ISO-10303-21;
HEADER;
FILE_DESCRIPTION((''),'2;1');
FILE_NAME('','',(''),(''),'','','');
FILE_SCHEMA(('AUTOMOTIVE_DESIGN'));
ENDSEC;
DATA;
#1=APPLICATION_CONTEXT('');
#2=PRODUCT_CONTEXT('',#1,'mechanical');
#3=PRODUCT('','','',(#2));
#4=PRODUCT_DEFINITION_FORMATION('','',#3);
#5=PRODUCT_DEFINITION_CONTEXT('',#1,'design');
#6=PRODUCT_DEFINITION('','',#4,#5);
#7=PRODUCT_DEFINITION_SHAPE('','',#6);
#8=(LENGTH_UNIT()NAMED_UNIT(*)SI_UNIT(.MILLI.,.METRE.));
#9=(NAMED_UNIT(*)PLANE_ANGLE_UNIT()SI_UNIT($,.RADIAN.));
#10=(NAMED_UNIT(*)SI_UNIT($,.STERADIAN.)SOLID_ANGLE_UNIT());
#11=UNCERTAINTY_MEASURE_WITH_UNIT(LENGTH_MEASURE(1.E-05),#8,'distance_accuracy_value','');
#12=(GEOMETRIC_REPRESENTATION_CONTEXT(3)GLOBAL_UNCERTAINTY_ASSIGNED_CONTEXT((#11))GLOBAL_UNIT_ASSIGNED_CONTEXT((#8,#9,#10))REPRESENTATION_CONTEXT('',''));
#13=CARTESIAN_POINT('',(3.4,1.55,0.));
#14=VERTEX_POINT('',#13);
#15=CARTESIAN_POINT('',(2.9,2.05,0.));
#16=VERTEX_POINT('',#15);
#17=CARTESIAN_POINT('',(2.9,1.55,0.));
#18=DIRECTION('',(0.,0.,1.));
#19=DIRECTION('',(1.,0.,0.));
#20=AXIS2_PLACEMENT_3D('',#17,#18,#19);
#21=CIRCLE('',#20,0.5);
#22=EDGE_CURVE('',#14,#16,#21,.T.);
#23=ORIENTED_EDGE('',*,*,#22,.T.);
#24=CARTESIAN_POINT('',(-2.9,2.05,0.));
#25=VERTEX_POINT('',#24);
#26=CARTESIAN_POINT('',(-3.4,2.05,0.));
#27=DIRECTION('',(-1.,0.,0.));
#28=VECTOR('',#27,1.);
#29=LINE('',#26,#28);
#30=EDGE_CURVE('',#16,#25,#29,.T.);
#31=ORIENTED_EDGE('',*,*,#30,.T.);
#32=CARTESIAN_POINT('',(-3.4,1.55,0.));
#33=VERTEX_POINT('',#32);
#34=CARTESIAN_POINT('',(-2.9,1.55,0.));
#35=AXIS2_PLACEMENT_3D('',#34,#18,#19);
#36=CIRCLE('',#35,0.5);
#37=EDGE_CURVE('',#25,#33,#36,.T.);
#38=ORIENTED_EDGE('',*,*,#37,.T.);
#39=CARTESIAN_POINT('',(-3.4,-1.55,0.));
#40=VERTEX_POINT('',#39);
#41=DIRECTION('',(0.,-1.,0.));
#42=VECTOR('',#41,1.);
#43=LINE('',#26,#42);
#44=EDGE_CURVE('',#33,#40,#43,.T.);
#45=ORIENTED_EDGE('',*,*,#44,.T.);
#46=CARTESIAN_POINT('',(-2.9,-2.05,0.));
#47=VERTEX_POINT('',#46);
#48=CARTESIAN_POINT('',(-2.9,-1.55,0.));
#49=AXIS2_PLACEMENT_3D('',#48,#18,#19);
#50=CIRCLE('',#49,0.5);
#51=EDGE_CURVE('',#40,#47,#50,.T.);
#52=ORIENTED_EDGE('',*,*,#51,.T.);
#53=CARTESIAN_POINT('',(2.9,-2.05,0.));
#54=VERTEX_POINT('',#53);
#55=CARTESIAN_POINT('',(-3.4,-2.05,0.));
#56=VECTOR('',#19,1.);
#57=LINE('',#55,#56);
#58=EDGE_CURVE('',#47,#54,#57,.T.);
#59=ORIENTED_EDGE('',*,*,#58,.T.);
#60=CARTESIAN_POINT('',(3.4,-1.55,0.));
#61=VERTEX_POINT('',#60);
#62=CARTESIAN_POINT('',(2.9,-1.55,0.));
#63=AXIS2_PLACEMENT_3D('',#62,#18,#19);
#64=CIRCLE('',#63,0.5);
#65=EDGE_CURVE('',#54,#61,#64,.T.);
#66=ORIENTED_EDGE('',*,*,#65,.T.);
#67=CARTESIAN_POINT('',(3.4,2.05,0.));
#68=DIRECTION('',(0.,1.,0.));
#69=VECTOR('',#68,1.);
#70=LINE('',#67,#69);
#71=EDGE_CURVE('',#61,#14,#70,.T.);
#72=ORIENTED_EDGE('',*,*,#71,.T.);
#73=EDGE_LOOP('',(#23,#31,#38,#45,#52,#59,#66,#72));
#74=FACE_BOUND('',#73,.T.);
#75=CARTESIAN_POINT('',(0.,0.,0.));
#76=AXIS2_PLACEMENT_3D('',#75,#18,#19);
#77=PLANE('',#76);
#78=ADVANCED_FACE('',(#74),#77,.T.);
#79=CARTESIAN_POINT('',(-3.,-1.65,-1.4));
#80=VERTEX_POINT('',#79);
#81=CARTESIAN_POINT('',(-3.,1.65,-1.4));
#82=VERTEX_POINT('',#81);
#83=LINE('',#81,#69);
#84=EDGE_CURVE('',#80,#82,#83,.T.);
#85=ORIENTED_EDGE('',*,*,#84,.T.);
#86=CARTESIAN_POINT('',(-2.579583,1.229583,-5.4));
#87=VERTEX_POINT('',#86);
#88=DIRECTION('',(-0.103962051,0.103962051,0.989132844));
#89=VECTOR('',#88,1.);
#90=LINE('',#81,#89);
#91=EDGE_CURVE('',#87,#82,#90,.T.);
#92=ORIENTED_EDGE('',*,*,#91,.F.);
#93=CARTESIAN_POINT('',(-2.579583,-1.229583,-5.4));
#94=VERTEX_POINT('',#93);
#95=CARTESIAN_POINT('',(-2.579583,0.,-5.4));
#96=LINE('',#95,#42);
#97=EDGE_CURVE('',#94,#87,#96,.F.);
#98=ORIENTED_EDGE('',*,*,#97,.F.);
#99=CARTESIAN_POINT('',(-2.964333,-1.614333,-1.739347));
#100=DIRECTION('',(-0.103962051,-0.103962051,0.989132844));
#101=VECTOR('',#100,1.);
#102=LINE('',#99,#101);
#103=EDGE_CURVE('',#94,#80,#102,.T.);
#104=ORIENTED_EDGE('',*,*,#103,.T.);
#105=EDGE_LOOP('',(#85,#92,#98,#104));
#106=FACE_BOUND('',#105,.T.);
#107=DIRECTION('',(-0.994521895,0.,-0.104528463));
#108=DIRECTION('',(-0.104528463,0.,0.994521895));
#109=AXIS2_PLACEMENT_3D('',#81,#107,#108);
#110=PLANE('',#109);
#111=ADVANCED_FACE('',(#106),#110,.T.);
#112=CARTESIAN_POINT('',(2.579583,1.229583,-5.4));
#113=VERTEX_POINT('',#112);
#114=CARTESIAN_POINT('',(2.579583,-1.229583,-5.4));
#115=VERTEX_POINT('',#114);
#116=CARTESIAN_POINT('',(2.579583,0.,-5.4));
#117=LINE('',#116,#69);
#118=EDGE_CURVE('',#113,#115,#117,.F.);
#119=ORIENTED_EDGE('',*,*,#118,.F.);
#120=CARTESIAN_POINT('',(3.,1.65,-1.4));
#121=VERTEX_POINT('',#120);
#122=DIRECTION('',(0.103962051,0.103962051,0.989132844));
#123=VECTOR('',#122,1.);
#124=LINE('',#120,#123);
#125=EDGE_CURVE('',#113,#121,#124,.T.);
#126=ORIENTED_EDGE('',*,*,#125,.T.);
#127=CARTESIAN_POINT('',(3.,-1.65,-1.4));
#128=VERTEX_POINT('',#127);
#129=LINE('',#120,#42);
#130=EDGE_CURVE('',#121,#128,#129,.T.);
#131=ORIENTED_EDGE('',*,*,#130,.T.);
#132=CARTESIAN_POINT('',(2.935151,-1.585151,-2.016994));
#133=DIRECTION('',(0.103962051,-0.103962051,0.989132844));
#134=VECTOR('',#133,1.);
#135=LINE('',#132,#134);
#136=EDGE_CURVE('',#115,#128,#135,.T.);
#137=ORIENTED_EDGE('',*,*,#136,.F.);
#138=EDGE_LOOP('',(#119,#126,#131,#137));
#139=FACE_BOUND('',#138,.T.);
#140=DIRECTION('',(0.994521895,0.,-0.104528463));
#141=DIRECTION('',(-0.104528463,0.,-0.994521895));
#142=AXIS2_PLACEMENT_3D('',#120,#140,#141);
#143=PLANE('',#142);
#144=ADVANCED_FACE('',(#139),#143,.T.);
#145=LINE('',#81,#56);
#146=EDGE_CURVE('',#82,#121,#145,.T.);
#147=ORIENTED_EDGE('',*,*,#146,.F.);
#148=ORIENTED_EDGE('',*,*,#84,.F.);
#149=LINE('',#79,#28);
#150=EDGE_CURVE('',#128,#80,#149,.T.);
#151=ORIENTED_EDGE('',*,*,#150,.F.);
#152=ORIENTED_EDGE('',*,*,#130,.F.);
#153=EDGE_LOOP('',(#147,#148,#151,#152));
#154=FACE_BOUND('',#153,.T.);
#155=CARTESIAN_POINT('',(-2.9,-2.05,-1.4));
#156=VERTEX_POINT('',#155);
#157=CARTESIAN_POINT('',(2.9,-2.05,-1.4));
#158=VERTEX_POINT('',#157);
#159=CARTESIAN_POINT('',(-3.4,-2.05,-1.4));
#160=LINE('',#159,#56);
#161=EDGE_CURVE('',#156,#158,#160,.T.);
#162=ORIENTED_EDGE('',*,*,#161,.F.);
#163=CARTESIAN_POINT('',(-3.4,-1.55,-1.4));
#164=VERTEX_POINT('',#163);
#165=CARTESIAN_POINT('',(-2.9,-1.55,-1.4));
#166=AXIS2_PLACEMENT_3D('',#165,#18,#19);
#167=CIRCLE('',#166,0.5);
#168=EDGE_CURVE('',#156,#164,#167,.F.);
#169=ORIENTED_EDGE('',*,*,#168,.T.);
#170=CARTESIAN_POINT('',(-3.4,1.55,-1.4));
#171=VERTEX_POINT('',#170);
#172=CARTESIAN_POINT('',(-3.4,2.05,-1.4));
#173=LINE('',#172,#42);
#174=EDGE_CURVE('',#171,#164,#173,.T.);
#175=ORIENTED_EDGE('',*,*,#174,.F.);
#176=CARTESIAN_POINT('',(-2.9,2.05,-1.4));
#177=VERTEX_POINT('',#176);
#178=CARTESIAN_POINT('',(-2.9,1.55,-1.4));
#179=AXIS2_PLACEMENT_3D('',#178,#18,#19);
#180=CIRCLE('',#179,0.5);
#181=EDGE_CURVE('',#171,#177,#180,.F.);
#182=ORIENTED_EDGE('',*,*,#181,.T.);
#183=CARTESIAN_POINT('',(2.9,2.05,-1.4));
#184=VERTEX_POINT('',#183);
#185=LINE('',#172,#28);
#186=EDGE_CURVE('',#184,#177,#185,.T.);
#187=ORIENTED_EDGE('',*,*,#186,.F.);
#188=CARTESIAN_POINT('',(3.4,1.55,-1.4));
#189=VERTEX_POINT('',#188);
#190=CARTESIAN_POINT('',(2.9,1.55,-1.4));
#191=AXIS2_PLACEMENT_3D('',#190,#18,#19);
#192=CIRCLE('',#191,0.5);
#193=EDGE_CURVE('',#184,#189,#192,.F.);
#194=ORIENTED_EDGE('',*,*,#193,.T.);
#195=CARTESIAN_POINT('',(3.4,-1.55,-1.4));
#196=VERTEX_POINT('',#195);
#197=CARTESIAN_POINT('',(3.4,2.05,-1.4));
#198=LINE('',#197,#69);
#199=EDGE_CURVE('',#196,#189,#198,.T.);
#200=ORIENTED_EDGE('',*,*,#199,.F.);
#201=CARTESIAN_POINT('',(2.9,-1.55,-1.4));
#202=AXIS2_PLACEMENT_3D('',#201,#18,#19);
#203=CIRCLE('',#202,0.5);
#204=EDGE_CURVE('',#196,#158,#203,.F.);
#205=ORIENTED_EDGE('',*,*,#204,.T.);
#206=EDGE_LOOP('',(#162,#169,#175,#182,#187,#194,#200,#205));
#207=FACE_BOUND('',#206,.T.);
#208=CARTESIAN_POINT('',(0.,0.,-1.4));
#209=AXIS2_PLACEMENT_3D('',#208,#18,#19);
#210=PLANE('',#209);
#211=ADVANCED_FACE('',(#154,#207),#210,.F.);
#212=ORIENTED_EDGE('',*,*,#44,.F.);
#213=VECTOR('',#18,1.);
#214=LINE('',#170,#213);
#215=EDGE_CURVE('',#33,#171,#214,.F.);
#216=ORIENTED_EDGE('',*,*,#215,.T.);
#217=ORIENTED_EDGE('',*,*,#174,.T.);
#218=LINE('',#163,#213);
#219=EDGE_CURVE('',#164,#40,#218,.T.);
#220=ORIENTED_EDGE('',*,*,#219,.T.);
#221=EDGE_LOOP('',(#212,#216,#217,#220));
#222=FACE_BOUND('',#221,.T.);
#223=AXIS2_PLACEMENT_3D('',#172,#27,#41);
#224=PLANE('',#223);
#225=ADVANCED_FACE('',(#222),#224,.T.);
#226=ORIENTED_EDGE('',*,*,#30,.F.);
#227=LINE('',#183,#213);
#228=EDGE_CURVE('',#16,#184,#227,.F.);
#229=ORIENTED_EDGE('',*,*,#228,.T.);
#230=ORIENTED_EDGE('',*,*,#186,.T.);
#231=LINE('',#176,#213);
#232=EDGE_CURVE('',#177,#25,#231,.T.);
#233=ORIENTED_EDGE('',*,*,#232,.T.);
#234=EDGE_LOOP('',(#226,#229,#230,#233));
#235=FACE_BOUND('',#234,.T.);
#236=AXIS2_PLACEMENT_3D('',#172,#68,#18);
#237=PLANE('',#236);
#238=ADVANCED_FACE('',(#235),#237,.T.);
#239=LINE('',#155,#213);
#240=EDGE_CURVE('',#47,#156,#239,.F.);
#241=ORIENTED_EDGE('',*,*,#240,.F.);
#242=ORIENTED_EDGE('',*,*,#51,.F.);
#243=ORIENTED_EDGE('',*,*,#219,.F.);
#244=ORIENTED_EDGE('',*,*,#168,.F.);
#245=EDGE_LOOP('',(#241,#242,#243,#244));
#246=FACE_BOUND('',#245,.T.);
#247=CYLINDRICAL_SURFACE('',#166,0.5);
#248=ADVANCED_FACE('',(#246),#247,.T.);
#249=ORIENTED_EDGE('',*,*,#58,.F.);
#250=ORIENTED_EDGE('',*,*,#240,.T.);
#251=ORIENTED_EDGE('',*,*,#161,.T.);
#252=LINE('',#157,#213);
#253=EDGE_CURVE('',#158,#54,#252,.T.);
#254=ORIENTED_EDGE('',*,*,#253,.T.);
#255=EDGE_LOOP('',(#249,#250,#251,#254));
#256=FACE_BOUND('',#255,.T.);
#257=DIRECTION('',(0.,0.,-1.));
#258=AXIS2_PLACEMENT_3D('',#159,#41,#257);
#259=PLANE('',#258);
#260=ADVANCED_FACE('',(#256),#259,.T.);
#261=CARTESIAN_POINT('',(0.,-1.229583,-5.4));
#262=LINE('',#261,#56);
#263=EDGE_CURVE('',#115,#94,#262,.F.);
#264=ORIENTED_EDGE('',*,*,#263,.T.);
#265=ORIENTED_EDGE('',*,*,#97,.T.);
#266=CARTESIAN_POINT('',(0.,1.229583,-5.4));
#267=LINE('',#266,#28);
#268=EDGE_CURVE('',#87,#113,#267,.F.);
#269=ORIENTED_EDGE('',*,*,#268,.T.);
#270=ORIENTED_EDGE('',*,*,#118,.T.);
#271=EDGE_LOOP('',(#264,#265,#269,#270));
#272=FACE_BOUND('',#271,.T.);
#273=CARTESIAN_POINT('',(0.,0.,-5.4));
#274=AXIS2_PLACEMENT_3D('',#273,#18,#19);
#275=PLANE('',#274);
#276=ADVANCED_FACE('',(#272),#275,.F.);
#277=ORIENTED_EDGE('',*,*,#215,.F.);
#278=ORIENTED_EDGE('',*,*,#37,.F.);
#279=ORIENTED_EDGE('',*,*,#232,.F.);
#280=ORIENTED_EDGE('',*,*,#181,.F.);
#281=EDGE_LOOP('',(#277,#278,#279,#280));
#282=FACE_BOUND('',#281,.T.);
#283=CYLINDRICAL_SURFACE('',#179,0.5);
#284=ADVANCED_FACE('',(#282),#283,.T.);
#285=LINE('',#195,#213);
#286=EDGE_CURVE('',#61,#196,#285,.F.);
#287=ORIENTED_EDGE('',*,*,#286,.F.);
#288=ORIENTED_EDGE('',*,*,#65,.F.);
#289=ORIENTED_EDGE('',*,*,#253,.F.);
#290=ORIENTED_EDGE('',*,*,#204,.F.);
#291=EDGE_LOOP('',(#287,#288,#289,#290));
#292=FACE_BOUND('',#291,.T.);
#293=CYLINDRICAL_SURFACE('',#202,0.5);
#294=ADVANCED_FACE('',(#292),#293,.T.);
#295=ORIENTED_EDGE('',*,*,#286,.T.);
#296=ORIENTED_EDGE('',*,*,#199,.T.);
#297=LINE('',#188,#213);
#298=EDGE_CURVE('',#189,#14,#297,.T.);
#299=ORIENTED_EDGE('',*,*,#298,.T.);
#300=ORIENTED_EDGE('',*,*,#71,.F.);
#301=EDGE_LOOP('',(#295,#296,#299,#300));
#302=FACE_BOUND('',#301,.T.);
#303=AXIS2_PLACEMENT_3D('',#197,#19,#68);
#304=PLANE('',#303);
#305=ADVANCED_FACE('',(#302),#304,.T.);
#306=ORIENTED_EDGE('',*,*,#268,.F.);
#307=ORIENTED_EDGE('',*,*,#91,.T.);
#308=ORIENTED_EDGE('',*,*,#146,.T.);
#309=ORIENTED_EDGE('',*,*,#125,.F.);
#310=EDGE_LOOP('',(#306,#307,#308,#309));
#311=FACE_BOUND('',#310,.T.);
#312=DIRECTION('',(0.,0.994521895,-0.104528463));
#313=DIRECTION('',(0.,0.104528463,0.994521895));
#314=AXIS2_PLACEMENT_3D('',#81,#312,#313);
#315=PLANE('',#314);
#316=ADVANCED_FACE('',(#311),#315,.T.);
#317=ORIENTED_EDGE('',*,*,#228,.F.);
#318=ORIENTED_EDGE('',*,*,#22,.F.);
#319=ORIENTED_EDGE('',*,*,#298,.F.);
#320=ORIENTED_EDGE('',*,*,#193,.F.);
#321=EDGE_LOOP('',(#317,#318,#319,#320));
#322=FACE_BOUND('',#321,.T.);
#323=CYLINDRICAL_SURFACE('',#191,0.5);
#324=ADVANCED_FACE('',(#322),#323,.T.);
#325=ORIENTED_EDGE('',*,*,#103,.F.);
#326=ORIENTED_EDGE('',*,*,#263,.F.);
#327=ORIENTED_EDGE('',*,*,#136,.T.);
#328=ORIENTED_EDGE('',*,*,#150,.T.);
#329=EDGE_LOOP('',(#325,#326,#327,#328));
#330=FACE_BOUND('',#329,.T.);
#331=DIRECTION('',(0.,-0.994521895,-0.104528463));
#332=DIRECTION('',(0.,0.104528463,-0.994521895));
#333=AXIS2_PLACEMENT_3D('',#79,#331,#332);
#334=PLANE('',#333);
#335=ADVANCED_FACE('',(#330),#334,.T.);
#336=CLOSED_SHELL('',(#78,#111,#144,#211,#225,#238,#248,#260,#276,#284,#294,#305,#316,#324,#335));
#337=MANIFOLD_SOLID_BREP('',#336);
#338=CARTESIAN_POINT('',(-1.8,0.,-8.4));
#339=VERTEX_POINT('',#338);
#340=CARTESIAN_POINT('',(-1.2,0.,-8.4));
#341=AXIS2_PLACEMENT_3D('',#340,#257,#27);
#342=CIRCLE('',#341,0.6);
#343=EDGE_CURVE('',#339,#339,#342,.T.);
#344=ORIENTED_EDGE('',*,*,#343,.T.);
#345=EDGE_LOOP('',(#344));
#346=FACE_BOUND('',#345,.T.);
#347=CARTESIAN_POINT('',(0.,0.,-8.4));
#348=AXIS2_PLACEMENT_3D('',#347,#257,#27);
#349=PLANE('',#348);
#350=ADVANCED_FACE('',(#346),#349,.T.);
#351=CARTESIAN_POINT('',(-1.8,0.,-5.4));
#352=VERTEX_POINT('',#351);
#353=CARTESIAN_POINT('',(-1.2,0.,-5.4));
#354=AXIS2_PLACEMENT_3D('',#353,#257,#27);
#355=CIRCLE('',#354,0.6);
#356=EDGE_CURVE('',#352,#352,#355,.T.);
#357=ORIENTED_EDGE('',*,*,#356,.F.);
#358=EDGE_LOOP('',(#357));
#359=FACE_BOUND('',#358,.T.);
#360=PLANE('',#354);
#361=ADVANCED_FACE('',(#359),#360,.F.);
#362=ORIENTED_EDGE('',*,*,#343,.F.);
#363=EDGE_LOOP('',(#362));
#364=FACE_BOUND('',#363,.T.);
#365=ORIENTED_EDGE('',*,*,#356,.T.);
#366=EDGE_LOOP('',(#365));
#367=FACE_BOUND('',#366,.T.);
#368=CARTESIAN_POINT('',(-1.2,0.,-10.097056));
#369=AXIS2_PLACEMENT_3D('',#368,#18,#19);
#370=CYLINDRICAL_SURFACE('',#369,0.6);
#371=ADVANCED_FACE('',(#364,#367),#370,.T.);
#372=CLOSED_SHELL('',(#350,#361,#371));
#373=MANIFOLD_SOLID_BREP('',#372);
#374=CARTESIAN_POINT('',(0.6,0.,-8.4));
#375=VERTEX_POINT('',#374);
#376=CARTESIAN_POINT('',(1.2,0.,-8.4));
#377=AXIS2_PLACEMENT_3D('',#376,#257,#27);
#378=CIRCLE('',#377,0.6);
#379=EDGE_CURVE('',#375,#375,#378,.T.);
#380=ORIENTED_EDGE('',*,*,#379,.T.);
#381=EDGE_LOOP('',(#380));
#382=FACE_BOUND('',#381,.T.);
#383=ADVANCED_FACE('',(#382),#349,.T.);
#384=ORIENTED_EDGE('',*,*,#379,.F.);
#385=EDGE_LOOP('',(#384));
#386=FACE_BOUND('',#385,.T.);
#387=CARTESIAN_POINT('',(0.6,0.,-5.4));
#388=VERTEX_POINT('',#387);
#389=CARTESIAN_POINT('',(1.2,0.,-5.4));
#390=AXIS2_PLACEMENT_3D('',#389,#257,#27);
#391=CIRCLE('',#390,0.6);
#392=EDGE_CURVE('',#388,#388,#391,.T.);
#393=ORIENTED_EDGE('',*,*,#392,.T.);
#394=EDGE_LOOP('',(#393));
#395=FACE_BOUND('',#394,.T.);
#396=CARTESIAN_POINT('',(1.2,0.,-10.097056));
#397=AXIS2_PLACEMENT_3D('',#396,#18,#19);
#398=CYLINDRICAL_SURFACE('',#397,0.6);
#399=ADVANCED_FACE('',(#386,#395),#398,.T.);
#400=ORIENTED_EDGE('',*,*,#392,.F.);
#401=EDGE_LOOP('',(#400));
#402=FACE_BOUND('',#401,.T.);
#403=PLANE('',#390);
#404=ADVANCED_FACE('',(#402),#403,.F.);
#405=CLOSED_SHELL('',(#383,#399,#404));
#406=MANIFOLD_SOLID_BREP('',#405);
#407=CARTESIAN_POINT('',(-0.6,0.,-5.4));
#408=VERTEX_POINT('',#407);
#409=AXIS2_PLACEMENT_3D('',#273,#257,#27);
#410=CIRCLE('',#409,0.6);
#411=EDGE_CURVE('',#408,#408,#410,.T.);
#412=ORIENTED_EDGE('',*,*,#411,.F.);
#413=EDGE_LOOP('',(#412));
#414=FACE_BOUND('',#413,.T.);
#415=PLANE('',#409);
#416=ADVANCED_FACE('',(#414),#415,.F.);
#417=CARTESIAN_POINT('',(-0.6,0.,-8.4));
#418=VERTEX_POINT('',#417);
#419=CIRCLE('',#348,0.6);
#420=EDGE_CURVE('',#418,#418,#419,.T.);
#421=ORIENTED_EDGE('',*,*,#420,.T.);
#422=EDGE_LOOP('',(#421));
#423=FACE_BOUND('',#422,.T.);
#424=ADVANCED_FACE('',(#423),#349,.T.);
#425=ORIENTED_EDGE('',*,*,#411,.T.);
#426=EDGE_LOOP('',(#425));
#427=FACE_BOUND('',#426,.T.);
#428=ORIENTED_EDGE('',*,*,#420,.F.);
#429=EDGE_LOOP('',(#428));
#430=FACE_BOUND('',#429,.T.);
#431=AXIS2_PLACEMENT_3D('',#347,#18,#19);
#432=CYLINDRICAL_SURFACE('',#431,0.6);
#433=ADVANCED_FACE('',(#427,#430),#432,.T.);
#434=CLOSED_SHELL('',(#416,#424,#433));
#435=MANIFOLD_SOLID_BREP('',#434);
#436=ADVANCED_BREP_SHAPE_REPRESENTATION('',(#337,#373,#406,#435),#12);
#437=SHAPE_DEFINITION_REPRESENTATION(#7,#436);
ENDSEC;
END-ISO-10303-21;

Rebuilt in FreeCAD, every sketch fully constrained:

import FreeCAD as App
import Part
import Sketcher
Q = App.Units.Quantity


def edges_at(feature, points):
    """Names of the edges that pass closest to the given points."""
    edges = feature.Shape.Edges
    near = lambda p: min(range(len(edges)), key=lambda i: edges[i].distToShape(Part.Vertex(*p))[0])
    return sorted({f"Edge{near(p) + 1}" for p in points})


def add_polygon(sketch, points):
    """Adds a closed chain of lines whose ends are joined by coincident constraints."""
    first, n = sketch.GeometryCount, len(points)
    for a, b in zip(points, points[1:] + points[:1]):
        sketch.addGeometry(Part.LineSegment(App.Vector(*a, 0), App.Vector(*b, 0)), False)
    for i in range(n):
        sketch.addConstraint(Sketcher.Constraint("Coincident", first + i, 2, first + (i + 1) % n, 1))

doc = App.newDocument("Part")
params = doc.addObject("Spreadsheet::Sheet", "Params")
for row, (alias, value) in enumerate([
    ("sketch1_width", "6.8 mm"),
    ("sketch1_height", "4.1 mm"),
    ("pad1_length", "1.4 mm"),
    ("sketch2_width", "6 mm"),
    ("sketch2_height", "3.3 mm"),
    ("pad2_length", "4 mm"),
    ("pad2_taper", "-6 deg"),
    ("fillet_radius", "0.5 mm"),
    ("sketch3_diameter", "1.2 mm"),
    ("pad3_length", "3 mm"),
    ("sketch4_diameter", "1.2 mm"),
    ("pad4_length", "3 mm"),
    ("sketch5_diameter", "1.2 mm"),
    ("pad5_length", "3 mm"),
], start=1):
    params.set(f"A{row}", alias)
    params.set(f"B{row}", "=" + value)
    params.setAlias(f"B{row}", alias)

body = doc.addObject("PartDesign::Body", "Body")

# Sketch on XY plane
sketch1 = doc.addObject("Sketcher::SketchObject", "Sketch")
body.addObject(sketch1)
sketch1.AttachmentSupport = (doc.XY_Plane, [""])
sketch1.MapMode = "FlatFace"
add_polygon(sketch1, [(-3.4, 2), (-3.4, -2), (3.4, -2), (3.4, 2)])  # lines 0-3
sketch1.addConstraint([
    Sketcher.Constraint("Vertical", 0),
    Sketcher.Constraint("Horizontal", 1),
    Sketcher.Constraint("Vertical", 2),
    Sketcher.Constraint("Horizontal", 3),
    Sketcher.Constraint("Symmetric", 0, 2, 2, 2, -1, 1),
    Sketcher.Constraint("DistanceX", 1, 1, 1, 2, Q("6.8 mm")),
    Sketcher.Constraint("DistanceY", 0, 2, 0, 1, Q("4.1 mm")),
])
sketch1.setExpression("Constraints[9]", "Params.sketch1_width")
sketch1.setExpression("Constraints[10]", "Params.sketch1_height")
pad1 = doc.addObject("PartDesign::Pad", "Pad")
body.addObject(pad1)
pad1.Profile = sketch1
pad1.setExpression("Length", "Params.pad1_length")
pad1.Reversed = True

# Sketch on XY plane
sketch2 = doc.addObject("Sketcher::SketchObject", "Sketch001")
body.addObject(sketch2)
sketch2.AttachmentSupport = (doc.XY_Plane, [""])
sketch2.MapMode = "FlatFace"
sketch2.AttachmentOffset = App.Placement(App.Vector(0, 0, -1.4), App.Rotation())
add_polygon(sketch2, [(3, 1.6), (3, -1.6), (-3, -1.6), (-3, 1.6)])  # lines 0-3
sketch2.addConstraint([
    Sketcher.Constraint("Vertical", 0),
    Sketcher.Constraint("Horizontal", 1),
    Sketcher.Constraint("Vertical", 2),
    Sketcher.Constraint("Horizontal", 3),
    Sketcher.Constraint("Symmetric", 0, 2, 2, 2, -1, 1),
    Sketcher.Constraint("DistanceX", 1, 2, 1, 1, Q("6 mm")),
    Sketcher.Constraint("DistanceY", 0, 2, 0, 1, Q("3.3 mm")),
])
sketch2.setExpression("Constraints[9]", "Params.sketch2_width")
sketch2.setExpression("Constraints[10]", "Params.sketch2_height")
pad2 = doc.addObject("PartDesign::Pad", "Pad001")
body.addObject(pad2)
pad2.Profile = sketch2
pad2.setExpression("Length", "Params.pad2_length")
pad2.Reversed = True
pad2.setExpression("TaperAngle", "Params.pad2_taper")
doc.recompute()

fillet = doc.addObject("PartDesign::Fillet", "Fillet")
body.addObject(fillet)
fillet.Base = (pad2, edges_at(pad2, [
    (3.4, -2.05, -0.7),
    (-3.4, -2.05, -0.7),
    (-3.4, 2.05, -0.7),
    (3.4, 2.05, -0.7),
]))
fillet.setExpression("Radius", "Params.fillet_radius")
body2 = doc.addObject("PartDesign::Body", "Body001")

# Sketch on XY plane
sketch3 = doc.addObject("Sketcher::SketchObject", "Sketch002")
body2.addObject(sketch3)
sketch3.AttachmentSupport = (doc.getObject("XY_Plane001"), [""])
sketch3.MapMode = "FlatFace"
sketch3.AttachmentOffset = App.Placement(App.Vector(0, 0, -5.4), App.Rotation())
sketch3.addGeometry(Part.Circle(App.Vector(0, 0, 0), App.Vector(0, 0, 1), 0.6), False)
sketch3.addConstraint([
    Sketcher.Constraint("Coincident", 0, 3, -1, 1),
    Sketcher.Constraint("Diameter", 0, Q("1.2 mm")),
])
sketch3.setExpression("Constraints[1]", "Params.sketch3_diameter")
pad3 = doc.addObject("PartDesign::Pad", "Pad002")
body2.addObject(pad3)
pad3.Profile = sketch3
pad3.setExpression("Length", "Params.pad3_length")
pad3.Reversed = True
body3 = doc.addObject("PartDesign::Body", "Body002")

# Sketch on XY plane
sketch4 = doc.addObject("Sketcher::SketchObject", "Sketch003")
body3.addObject(sketch4)
sketch4.AttachmentSupport = (doc.getObject("XY_Plane002"), [""])
sketch4.MapMode = "FlatFace"
sketch4.AttachmentOffset = App.Placement(App.Vector(0, 0, -5.4), App.Rotation())
sketch4.addGeometry(Part.Circle(App.Vector(-1.2, 0, 0), App.Vector(0, 0, 1), 0.6), False)
sketch4.addConstraint([
    Sketcher.Constraint("PointOnObject", 0, 3, -1),
    Sketcher.Constraint("Diameter", 0, Q("1.2 mm")),
    Sketcher.Constraint("DistanceX", 0, 3, -1, 1, Q("1.2 mm")),
])
sketch4.setExpression("Constraints[1]", "Params.sketch4_diameter")
pad4 = doc.addObject("PartDesign::Pad", "Pad003")
body3.addObject(pad4)
pad4.Profile = sketch4
pad4.setExpression("Length", "Params.pad4_length")
pad4.Reversed = True
body4 = doc.addObject("PartDesign::Body", "Body003")

# Sketch on XY plane
sketch5 = doc.addObject("Sketcher::SketchObject", "Sketch004")
body4.addObject(sketch5)
sketch5.AttachmentSupport = (doc.getObject("XY_Plane003"), [""])
sketch5.MapMode = "FlatFace"
sketch5.AttachmentOffset = App.Placement(App.Vector(0, 0, -5.4), App.Rotation())
sketch5.addGeometry(Part.Circle(App.Vector(1.2, 0, 0), App.Vector(0, 0, 1), 0.6), False)
sketch5.addConstraint([
    Sketcher.Constraint("PointOnObject", 0, 3, -1),
    Sketcher.Constraint("Diameter", 0, Q("1.2 mm")),
    Sketcher.Constraint("DistanceX", -1, 1, 0, 3, Q("1.2 mm")),
])
sketch5.setExpression("Constraints[1]", "Params.sketch5_diameter")
pad5 = doc.addObject("PartDesign::Pad", "Pad004")
body4.addObject(pad5)
pad5.Profile = sketch5
pad5.setExpression("Length", "Params.pad5_length")
pad5.Reversed = True

doc.recompute()
